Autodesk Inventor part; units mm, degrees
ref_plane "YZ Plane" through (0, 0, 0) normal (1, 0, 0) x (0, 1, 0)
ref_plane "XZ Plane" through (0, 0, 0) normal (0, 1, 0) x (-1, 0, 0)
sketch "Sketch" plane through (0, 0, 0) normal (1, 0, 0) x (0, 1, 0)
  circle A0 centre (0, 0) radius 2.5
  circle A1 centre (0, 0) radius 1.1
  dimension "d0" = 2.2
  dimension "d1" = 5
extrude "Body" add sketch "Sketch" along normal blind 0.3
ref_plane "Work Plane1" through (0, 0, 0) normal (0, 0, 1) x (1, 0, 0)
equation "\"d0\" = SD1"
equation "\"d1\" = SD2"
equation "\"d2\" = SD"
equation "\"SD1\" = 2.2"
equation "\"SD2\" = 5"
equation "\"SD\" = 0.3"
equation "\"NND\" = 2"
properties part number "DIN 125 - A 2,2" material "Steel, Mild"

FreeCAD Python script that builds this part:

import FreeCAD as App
import Part
import Sketcher
from FreeCAD import Vector

doc = App.newDocument("Part")
body = doc.addObject("PartDesign::Body", "Body")

# Sketch on YZ plane
sketch1 = doc.addObject("Sketcher::SketchObject", "Sketch")
body.addObject(sketch1)
sketch1.AttachmentSupport = (doc.YZ_Plane, [""])
sketch1.MapMode = "FlatFace"
sketch1.addGeometry([
    Part.Circle(Vector(0, 0, 0), Vector(0, 0, 1), 2.5),
    Part.Circle(Vector(0, 0, 0), Vector(0, 0, 1), 1.1),
], False)
sketch1.addConstraint([
    Sketcher.Constraint("Coincident", 0, 3, -1, 1),
    Sketcher.Constraint("Coincident", 1, 3, -1, 1),
    Sketcher.Constraint("Diameter", 0, 5.0),
    Sketcher.Constraint("Diameter", 1, 2.2),
])
pad1 = doc.addObject("PartDesign::Pad", "Pad")
body.addObject(pad1)
pad1.Profile = sketch1
pad1.Length = 0.3

doc.recompute()
